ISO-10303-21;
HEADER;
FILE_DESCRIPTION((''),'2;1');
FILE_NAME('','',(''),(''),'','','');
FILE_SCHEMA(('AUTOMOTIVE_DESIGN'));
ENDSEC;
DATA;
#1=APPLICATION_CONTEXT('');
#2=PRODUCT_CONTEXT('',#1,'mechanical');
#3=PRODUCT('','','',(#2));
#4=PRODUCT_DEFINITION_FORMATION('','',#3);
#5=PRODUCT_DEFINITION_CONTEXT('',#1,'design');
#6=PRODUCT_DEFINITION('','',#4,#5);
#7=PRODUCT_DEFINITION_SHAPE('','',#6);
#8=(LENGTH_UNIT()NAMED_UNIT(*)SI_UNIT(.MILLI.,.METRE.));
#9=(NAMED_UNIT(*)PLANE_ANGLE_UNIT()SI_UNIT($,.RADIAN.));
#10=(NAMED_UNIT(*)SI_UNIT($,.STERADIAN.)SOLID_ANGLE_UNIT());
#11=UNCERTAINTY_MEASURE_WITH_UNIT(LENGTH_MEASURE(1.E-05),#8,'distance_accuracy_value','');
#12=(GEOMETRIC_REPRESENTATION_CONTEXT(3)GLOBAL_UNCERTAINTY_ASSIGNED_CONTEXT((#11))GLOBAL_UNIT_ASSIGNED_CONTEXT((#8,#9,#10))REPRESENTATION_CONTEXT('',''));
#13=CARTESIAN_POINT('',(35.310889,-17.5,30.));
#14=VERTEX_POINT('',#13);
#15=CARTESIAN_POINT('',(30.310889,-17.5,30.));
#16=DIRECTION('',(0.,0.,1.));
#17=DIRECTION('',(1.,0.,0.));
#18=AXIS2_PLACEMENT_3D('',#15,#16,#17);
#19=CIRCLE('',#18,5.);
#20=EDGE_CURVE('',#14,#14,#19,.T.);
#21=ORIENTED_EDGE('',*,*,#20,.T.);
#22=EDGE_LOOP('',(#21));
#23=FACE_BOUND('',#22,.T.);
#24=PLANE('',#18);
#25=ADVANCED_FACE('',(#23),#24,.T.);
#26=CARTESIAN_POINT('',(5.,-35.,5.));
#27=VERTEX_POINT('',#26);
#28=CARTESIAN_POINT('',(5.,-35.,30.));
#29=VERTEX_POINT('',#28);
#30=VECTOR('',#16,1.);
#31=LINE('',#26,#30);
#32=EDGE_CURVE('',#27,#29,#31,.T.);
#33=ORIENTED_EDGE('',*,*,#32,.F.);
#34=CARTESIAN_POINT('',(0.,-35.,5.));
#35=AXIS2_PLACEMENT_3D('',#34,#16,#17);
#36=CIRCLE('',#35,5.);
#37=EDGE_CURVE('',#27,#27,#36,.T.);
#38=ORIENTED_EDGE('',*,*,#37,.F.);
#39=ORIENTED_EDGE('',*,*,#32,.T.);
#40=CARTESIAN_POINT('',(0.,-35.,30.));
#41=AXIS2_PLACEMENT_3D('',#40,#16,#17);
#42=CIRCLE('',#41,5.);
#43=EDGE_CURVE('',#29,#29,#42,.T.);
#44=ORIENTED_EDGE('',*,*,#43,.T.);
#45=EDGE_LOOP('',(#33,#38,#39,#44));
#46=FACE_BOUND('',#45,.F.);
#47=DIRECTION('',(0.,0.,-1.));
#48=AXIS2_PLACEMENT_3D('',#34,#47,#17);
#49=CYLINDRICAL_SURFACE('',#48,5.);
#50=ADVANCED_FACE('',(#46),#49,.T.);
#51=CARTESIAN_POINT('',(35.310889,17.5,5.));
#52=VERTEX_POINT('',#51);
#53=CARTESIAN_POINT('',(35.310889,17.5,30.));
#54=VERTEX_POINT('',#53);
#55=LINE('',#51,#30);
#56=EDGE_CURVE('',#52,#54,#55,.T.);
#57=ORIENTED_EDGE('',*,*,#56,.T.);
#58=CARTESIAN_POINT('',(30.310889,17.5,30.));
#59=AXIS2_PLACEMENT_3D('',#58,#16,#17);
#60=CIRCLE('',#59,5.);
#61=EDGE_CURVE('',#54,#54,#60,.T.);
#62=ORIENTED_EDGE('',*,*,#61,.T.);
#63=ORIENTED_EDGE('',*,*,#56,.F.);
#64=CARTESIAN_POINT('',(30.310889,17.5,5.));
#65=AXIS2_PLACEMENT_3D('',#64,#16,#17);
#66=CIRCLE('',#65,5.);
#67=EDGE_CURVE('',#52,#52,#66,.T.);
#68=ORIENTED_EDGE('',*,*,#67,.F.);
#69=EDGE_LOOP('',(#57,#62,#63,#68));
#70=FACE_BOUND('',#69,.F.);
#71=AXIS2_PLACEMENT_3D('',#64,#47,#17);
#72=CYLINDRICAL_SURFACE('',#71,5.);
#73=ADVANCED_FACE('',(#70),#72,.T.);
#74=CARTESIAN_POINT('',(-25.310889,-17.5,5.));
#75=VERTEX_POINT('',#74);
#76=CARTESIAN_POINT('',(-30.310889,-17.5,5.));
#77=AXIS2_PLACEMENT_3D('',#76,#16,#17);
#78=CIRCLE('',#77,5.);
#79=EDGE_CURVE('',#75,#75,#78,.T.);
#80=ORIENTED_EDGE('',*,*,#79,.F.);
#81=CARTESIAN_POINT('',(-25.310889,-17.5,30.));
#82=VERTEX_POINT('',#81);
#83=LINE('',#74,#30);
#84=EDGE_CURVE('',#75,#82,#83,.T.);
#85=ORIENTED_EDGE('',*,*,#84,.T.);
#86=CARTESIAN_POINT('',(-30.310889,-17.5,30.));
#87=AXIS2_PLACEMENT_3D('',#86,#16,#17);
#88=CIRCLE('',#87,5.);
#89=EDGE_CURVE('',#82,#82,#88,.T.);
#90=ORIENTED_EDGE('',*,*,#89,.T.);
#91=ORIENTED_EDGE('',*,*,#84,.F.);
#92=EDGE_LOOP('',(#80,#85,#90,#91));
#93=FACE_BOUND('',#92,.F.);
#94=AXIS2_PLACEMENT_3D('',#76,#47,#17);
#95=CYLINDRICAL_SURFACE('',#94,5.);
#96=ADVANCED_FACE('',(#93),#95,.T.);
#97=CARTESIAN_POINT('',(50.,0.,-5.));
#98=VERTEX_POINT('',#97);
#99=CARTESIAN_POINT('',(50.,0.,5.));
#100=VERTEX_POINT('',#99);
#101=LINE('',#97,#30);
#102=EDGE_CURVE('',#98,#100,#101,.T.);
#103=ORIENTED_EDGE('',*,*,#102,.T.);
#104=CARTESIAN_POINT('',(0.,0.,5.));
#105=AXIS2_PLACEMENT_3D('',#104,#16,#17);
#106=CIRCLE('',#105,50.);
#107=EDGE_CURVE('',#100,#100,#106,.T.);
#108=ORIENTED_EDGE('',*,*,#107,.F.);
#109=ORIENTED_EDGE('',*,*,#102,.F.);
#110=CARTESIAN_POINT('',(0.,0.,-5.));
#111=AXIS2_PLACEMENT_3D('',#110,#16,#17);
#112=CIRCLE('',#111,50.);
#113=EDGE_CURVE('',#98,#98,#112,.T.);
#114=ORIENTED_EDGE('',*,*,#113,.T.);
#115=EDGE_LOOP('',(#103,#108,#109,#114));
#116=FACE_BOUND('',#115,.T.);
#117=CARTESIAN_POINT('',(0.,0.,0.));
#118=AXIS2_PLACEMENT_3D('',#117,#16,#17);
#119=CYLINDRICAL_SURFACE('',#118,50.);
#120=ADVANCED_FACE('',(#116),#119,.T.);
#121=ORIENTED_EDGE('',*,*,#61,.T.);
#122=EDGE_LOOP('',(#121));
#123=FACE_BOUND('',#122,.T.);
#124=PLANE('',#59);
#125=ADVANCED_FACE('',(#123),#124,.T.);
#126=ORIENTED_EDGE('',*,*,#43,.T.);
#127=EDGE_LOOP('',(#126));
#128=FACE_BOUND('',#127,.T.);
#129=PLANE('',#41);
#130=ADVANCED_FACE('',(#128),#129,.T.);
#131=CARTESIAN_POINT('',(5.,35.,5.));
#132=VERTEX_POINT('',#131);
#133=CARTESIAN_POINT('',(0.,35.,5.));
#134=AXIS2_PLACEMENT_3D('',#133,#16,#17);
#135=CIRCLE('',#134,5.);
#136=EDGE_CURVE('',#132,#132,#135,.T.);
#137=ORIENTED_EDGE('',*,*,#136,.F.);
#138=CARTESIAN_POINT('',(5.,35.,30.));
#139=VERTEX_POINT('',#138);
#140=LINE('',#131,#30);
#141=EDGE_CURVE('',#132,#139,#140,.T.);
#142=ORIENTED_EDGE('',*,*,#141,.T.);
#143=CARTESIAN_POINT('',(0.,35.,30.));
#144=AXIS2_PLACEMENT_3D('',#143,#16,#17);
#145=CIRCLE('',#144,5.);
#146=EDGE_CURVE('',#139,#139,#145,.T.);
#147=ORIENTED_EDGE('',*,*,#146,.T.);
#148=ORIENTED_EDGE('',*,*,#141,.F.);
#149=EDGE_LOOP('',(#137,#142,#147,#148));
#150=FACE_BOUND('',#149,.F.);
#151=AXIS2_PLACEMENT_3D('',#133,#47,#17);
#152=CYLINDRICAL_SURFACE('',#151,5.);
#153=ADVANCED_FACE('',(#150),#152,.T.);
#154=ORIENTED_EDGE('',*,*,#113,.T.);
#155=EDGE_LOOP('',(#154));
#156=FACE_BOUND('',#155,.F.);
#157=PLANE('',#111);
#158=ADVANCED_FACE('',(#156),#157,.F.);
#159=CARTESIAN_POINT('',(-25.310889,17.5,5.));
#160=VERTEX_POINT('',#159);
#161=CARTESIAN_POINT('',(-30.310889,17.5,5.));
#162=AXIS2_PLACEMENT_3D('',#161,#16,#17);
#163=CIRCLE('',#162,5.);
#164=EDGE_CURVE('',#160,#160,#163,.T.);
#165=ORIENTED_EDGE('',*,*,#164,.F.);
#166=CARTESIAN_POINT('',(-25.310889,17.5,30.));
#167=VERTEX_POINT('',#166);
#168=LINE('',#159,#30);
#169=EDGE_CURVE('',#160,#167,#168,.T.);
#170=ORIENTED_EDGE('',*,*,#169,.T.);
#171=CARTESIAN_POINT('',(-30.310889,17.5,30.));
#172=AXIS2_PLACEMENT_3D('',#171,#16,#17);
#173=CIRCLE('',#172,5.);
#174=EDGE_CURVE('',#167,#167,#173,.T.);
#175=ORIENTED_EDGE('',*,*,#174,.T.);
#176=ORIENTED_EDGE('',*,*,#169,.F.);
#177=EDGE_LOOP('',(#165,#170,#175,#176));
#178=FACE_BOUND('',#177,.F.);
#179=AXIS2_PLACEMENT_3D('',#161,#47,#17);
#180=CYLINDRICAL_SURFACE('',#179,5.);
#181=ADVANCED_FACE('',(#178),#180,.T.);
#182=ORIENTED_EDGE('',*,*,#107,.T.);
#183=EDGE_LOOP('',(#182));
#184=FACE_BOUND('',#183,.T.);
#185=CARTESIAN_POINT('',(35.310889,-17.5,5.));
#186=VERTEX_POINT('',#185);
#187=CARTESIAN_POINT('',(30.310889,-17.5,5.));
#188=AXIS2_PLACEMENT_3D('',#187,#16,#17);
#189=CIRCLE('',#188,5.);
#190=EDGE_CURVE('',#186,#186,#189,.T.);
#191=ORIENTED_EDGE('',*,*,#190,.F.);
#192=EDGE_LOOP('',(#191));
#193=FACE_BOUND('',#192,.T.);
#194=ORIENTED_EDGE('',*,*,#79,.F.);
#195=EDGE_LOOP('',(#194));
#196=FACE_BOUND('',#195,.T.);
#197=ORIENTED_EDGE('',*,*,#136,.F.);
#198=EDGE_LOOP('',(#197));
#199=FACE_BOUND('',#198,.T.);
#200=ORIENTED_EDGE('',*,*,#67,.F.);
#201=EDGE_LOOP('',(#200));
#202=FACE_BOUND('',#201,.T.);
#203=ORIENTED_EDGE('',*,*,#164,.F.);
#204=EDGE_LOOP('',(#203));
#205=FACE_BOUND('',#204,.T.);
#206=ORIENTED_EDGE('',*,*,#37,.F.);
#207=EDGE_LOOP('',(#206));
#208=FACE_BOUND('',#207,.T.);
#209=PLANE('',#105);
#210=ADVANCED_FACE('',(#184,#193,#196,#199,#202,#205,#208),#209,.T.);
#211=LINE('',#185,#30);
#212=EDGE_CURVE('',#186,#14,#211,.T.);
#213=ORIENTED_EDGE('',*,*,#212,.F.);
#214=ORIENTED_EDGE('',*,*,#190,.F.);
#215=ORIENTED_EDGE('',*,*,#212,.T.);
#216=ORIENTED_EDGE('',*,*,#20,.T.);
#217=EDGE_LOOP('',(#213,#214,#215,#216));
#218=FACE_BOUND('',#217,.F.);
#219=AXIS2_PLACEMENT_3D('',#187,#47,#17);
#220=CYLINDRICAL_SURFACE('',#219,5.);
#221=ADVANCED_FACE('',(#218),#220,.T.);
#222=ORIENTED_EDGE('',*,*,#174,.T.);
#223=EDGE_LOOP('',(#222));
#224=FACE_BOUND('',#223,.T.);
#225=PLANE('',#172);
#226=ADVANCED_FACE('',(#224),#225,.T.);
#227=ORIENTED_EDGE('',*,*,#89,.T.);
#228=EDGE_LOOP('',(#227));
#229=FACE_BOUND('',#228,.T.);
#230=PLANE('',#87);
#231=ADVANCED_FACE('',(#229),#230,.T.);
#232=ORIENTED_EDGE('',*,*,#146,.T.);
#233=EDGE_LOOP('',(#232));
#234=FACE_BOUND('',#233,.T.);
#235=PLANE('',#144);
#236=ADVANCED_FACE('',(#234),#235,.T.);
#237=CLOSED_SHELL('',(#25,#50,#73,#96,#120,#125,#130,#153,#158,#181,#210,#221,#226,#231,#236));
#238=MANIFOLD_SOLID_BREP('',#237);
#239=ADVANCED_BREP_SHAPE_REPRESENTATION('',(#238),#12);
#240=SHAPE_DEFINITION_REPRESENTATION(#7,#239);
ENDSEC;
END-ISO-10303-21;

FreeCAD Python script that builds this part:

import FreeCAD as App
import Part
import Sketcher
from FreeCAD import Vector

doc = App.newDocument("Part")
body = doc.addObject("PartDesign::Body", "Body")

# Sketch on XY plane
sketch1 = body.newObject("Sketcher::SketchObject", "Sketch")
sketch1.AttachmentSupport = (doc.getObject("XY_Plane"), [""])
sketch1.MapMode = "FlatFace"
sketch1.addGeometry(Part.Circle(Vector(0, 0, 0), Vector(0, 0, 1), 50), False)
sketch1.addConstraint([
    Sketcher.Constraint("Coincident", 0, 3, -1, 1),
    Sketcher.Constraint("Diameter", 0, 100.0),
])
pad1 = body.newObject("PartDesign::Pad", "Pad")
pad1.Profile = sketch1
pad1.Length = 10
pad1.Midplane = True

# Sketch on XY plane
sketch2 = body.newObject("Sketcher::SketchObject", "Sketch001")
sketch2.AttachmentSupport = (doc.getObject("XY_Plane"), [""])
sketch2.MapMode = "FlatFace"
sketch2.AttachmentOffset = App.Placement(Vector(0, 0, 5), App.Rotation())
sketch2.addGeometry([
    Part.Circle(Vector(0, 35, 0), Vector(0, 0, 1), 5),  # 0
    Part.Circle(Vector(-30, 18, 0), Vector(0, 0, 1), 5),  # 1
    Part.Circle(Vector(-30, -18, 0), Vector(0, 0, 1), 5),  # 2
    Part.Circle(Vector(0, -35, 0), Vector(0, 0, 1), 5),  # 3
    Part.Circle(Vector(30, -18, 0), Vector(0, 0, 1), 5),  # 4
    Part.Circle(Vector(30, 18, 0), Vector(0, 0, 1), 5),  # 5
], False)
sketch2.addConstraint([
    Sketcher.Constraint("Equal", 0, 1),
    Sketcher.Constraint("Equal", 1, 2),
    Sketcher.Constraint("Equal", 2, 3),
    Sketcher.Constraint("Equal", 3, 4),
    Sketcher.Constraint("Equal", 4, 5),
    Sketcher.Constraint("Symmetric", 0, 3, 3, 3, -1, 1),
    Sketcher.Constraint("Symmetric", 1, 3, 4, 3, -1, 1),
    Sketcher.Constraint("Symmetric", 2, 3, 5, 3, -1, 1),
    Sketcher.Constraint("Symmetric", 2, 3, 4, 3, -2),
    Sketcher.Constraint("PointOnObject", 0, 3, -2),
    Sketcher.Constraint("Diameter", 0, 10.0),
    Sketcher.Constraint("DistanceY", -1, 1, 0, 3, 35.0),
    Sketcher.Constraint("DistanceY", 2, 3, 1, 3, 35.0),
    Sketcher.Constraint("DistanceX", 1, 3, -1, 1, 30.310889),
])
pad2 = body.newObject("PartDesign::Pad", "Pad001")
pad2.Profile = sketch2
pad2.Length = 25

doc.recompute()
